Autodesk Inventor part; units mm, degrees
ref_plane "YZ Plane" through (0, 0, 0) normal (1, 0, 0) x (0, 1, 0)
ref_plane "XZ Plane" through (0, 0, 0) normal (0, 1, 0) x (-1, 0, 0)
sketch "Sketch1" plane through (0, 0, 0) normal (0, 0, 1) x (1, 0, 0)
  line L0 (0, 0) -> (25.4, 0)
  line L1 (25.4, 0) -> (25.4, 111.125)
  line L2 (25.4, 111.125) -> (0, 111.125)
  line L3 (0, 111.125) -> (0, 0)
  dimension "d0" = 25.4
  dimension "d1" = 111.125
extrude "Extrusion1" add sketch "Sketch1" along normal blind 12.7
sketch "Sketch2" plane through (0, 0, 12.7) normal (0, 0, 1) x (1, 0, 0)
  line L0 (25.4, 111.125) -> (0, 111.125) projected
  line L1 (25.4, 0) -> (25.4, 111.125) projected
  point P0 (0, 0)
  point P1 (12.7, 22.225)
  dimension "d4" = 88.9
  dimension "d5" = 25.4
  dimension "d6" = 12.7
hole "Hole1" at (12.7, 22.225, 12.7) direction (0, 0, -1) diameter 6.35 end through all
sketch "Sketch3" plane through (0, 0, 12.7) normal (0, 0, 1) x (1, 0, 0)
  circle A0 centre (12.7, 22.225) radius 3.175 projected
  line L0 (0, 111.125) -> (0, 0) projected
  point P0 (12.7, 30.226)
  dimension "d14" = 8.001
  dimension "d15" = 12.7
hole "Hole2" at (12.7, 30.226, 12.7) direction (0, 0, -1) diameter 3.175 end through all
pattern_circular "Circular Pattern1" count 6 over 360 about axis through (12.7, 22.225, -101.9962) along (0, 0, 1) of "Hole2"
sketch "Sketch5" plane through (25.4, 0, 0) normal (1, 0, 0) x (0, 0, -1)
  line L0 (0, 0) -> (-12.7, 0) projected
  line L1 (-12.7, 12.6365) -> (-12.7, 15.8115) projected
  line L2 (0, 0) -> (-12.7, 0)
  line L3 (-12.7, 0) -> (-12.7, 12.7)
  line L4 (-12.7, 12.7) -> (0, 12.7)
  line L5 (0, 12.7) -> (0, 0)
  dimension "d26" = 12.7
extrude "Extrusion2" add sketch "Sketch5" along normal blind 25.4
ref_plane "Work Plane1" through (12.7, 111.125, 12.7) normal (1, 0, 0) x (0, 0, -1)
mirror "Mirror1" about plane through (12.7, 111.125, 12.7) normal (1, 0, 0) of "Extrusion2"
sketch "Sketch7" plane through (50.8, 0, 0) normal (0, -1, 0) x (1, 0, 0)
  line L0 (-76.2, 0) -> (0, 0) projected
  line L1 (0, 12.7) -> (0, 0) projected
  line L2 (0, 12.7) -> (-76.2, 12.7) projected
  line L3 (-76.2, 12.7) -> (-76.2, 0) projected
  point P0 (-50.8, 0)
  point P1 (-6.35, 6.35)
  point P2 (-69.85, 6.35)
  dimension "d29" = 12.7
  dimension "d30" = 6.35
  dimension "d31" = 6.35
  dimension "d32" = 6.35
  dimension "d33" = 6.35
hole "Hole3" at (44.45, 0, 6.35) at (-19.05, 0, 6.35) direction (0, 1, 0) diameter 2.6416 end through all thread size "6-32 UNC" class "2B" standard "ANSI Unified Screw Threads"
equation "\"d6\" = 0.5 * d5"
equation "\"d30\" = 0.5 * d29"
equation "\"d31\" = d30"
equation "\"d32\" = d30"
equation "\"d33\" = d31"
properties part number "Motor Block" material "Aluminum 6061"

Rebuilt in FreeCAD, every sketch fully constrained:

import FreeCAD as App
import Part
import Sketcher
from FreeCAD import Vector
Q = App.Units.Quantity

doc = App.newDocument("Part")
body = doc.addObject("PartDesign::Body", "Body")

# Sketch on XY plane
sketch1 = body.newObject("Sketcher::SketchObject", "Sketch")
sketch1.AttachmentSupport = (doc.getObject("XY_Plane"), [""])
sketch1.MapMode = "FlatFace"
sketch1.addGeometry([
    Part.LineSegment(Vector(0, 111.125, 0), Vector(0, 0, 0)),
    Part.LineSegment(Vector(0, 0, 0), Vector(25.4, 0, 0)),
    Part.LineSegment(Vector(25.4, 0, 0), Vector(25.4, 111.125, 0)),
    Part.LineSegment(Vector(25.4, 111.125, 0), Vector(0, 111.125, 0)),
], False)
sketch1.addConstraint([
    Sketcher.Constraint("Coincident", 0, 2, 1, 1),
    Sketcher.Constraint("Coincident", 1, 2, 2, 1),
    Sketcher.Constraint("Coincident", 2, 2, 3, 1),
    Sketcher.Constraint("Coincident", 3, 2, 0, 1),
    Sketcher.Constraint("Vertical", 0),
    Sketcher.Constraint("Horizontal", 1),
    Sketcher.Constraint("Vertical", 2),
    Sketcher.Constraint("Horizontal", 3),
    Sketcher.Constraint("Coincident", 0, 2, -1, 1),
    Sketcher.Constraint("DistanceX", 1, 1, 1, 2, Q("1 in")),
    Sketcher.Constraint("DistanceY", 0, 2, 0, 1, Q("4.375 in")),
])
pad1 = body.newObject("PartDesign::Pad", "Pad")
pad1.Profile = sketch1
pad1.Length = Q("0.5 in")

# Sketch on XY plane
sketch2 = body.newObject("Sketcher::SketchObject", "Sketch001")
sketch2.AttachmentSupport = (doc.getObject("XY_Plane"), [""])
sketch2.MapMode = "FlatFace"
sketch2.AttachmentOffset = App.Placement(Vector(0, 0, 0.5 * 25.4), App.Rotation())
sketch2.addGeometry(Part.Circle(Vector(12.7, 22.225, 0), Vector(0, 0, 1), 3.175), False)
sketch2.addConstraint([
    Sketcher.Constraint("Diameter", 0, Q("0.25 in")),
    Sketcher.Constraint("DistanceX", -1, 1, 0, 3, Q("0.5 in")),
    Sketcher.Constraint("DistanceY", -1, 1, 0, 3, Q("0.875 in")),
])
doc.recompute()
hole = body.newObject("PartDesign::Hole", "Hole")
hole.Profile = sketch2
hole.ThreadType = "None"
hole.Diameter = Q("0.25 in")
hole.DepthType = "ThroughAll"

# Sketch on XY plane
sketch3 = body.newObject("Sketcher::SketchObject", "Sketch002")
sketch3.AttachmentSupport = (doc.getObject("XY_Plane"), [""])
sketch3.MapMode = "FlatFace"
sketch3.AttachmentOffset = App.Placement(Vector(0, 0, 0.5 * 25.4), App.Rotation())
sketch3.addGeometry(Part.Circle(Vector(12.7, 30.226, 0), Vector(0, 0, 1), 1.5875), False)
sketch3.addConstraint([
    Sketcher.Constraint("Diameter", 0, Q("0.125 in")),
    Sketcher.Constraint("DistanceX", -1, 1, 0, 3, Q("0.5 in")),
    Sketcher.Constraint("DistanceY", -1, 1, 0, 3, Q("1.19 in")),
])
doc.recompute()
hole2 = body.newObject("PartDesign::Hole", "Hole001")
hole2.Profile = sketch3
hole2.ThreadType = "None"
hole2.Diameter = Q("0.125 in")
hole2.DepthType = "ThroughAll"
doc.recompute()

datumline = body.newObject("PartDesign::Line", "DatumLine")
datumline.Placement = App.Placement(Vector(12.7, 22.225, 0), App.Rotation(Vector(0, 0, 1), Vector(0, 0, 1)))
polarpattern = body.newObject("PartDesign::PolarPattern", "PolarPattern")
polarpattern.Originals = [hole2]
polarpattern.Axis = (datumline, [""])
polarpattern.Angle = 360
polarpattern.Occurrences = 6
body.Tip = polarpattern

# Sketch on YZ plane
sketch4 = body.newObject("Sketcher::SketchObject", "Sketch003")
sketch4.AttachmentSupport = (doc.getObject("YZ_Plane"), [""])
sketch4.MapMode = "FlatFace"
sketch4.AttachmentOffset = App.Placement(Vector(0, 0, 1 * 25.4), App.Rotation())
sketch4.addGeometry([
    Part.LineSegment(Vector(0, 12.7, 0), Vector(0, 0, 0)),
    Part.LineSegment(Vector(0, 0, 0), Vector(12.7, 0, 0)),
    Part.LineSegment(Vector(12.7, 0, 0), Vector(12.7, 12.7, 0)),
    Part.LineSegment(Vector(12.7, 12.7, 0), Vector(0, 12.7, 0)),
], False)
sketch4.addConstraint([
    Sketcher.Constraint("Coincident", 0, 2, 1, 1),
    Sketcher.Constraint("Coincident", 1, 2, 2, 1),
    Sketcher.Constraint("Coincident", 2, 2, 3, 1),
    Sketcher.Constraint("Coincident", 3, 2, 0, 1),
    Sketcher.Constraint("Vertical", 0),
    Sketcher.Constraint("Horizontal", 1),
    Sketcher.Constraint("Vertical", 2),
    Sketcher.Constraint("Horizontal", 3),
    Sketcher.Constraint("Coincident", 0, 2, -1, 1),
    Sketcher.Constraint("Equal", 3, 0),
    Sketcher.Constraint("DistanceX", 1, 1, 1, 2, Q("0.5 in")),
])
pad2 = body.newObject("PartDesign::Pad", "Pad001")
pad2.Profile = sketch4
pad2.Length = Q("1 in")
doc.recompute()

datumplane = body.newObject("PartDesign::Plane", "DatumPlane")
datumplane.AttachmentSupport = (doc.getObject("YZ_Plane"), [""])
datumplane.MapMode = "FlatFace"
datumplane.AttachmentOffset = App.Placement(Vector(0, 0, 0.5 * 25.4), App.Rotation())
mirrored = body.newObject("PartDesign::Mirrored", "Mirrored")
mirrored.Originals = [pad2]
mirrored.MirrorPlane = (datumplane, [""])
body.Tip = mirrored

# Sketch on XZ plane
sketch5 = body.newObject("Sketcher::SketchObject", "Sketch004")
sketch5.AttachmentSupport = (doc.getObject("XZ_Plane"), [""])
sketch5.MapMode = "FlatFace"
sketch5.addGeometry([
    Part.Circle(Vector(44.45, 6.35, 0), Vector(0, 0, 1), 1.3208),
    Part.Circle(Vector(-19.05, 6.35, 0), Vector(0, 0, 1), 1.3208),
], False)
sketch5.addConstraint([
    Sketcher.Constraint("Equal", 0, 1),
    Sketcher.Constraint("Horizontal", 0, 3, 1, 3),
    Sketcher.Constraint("Diameter", 0, Q("0.104 in")),
    Sketcher.Constraint("DistanceX", 1, 3, 0, 3, Q("2.5 in")),
    Sketcher.Constraint("DistanceX", -1, 1, 0, 3, Q("1.75 in")),
    Sketcher.Constraint("DistanceY", -1, 1, 0, 3, Q("0.25 in")),
])
doc.recompute()
hole3 = body.newObject("PartDesign::Hole", "Hole002")
hole3.Profile = sketch5
hole3.ThreadType = "None"
hole3.Diameter = Q("0.104 in")
hole3.DepthType = "ThroughAll"

doc.recompute()
